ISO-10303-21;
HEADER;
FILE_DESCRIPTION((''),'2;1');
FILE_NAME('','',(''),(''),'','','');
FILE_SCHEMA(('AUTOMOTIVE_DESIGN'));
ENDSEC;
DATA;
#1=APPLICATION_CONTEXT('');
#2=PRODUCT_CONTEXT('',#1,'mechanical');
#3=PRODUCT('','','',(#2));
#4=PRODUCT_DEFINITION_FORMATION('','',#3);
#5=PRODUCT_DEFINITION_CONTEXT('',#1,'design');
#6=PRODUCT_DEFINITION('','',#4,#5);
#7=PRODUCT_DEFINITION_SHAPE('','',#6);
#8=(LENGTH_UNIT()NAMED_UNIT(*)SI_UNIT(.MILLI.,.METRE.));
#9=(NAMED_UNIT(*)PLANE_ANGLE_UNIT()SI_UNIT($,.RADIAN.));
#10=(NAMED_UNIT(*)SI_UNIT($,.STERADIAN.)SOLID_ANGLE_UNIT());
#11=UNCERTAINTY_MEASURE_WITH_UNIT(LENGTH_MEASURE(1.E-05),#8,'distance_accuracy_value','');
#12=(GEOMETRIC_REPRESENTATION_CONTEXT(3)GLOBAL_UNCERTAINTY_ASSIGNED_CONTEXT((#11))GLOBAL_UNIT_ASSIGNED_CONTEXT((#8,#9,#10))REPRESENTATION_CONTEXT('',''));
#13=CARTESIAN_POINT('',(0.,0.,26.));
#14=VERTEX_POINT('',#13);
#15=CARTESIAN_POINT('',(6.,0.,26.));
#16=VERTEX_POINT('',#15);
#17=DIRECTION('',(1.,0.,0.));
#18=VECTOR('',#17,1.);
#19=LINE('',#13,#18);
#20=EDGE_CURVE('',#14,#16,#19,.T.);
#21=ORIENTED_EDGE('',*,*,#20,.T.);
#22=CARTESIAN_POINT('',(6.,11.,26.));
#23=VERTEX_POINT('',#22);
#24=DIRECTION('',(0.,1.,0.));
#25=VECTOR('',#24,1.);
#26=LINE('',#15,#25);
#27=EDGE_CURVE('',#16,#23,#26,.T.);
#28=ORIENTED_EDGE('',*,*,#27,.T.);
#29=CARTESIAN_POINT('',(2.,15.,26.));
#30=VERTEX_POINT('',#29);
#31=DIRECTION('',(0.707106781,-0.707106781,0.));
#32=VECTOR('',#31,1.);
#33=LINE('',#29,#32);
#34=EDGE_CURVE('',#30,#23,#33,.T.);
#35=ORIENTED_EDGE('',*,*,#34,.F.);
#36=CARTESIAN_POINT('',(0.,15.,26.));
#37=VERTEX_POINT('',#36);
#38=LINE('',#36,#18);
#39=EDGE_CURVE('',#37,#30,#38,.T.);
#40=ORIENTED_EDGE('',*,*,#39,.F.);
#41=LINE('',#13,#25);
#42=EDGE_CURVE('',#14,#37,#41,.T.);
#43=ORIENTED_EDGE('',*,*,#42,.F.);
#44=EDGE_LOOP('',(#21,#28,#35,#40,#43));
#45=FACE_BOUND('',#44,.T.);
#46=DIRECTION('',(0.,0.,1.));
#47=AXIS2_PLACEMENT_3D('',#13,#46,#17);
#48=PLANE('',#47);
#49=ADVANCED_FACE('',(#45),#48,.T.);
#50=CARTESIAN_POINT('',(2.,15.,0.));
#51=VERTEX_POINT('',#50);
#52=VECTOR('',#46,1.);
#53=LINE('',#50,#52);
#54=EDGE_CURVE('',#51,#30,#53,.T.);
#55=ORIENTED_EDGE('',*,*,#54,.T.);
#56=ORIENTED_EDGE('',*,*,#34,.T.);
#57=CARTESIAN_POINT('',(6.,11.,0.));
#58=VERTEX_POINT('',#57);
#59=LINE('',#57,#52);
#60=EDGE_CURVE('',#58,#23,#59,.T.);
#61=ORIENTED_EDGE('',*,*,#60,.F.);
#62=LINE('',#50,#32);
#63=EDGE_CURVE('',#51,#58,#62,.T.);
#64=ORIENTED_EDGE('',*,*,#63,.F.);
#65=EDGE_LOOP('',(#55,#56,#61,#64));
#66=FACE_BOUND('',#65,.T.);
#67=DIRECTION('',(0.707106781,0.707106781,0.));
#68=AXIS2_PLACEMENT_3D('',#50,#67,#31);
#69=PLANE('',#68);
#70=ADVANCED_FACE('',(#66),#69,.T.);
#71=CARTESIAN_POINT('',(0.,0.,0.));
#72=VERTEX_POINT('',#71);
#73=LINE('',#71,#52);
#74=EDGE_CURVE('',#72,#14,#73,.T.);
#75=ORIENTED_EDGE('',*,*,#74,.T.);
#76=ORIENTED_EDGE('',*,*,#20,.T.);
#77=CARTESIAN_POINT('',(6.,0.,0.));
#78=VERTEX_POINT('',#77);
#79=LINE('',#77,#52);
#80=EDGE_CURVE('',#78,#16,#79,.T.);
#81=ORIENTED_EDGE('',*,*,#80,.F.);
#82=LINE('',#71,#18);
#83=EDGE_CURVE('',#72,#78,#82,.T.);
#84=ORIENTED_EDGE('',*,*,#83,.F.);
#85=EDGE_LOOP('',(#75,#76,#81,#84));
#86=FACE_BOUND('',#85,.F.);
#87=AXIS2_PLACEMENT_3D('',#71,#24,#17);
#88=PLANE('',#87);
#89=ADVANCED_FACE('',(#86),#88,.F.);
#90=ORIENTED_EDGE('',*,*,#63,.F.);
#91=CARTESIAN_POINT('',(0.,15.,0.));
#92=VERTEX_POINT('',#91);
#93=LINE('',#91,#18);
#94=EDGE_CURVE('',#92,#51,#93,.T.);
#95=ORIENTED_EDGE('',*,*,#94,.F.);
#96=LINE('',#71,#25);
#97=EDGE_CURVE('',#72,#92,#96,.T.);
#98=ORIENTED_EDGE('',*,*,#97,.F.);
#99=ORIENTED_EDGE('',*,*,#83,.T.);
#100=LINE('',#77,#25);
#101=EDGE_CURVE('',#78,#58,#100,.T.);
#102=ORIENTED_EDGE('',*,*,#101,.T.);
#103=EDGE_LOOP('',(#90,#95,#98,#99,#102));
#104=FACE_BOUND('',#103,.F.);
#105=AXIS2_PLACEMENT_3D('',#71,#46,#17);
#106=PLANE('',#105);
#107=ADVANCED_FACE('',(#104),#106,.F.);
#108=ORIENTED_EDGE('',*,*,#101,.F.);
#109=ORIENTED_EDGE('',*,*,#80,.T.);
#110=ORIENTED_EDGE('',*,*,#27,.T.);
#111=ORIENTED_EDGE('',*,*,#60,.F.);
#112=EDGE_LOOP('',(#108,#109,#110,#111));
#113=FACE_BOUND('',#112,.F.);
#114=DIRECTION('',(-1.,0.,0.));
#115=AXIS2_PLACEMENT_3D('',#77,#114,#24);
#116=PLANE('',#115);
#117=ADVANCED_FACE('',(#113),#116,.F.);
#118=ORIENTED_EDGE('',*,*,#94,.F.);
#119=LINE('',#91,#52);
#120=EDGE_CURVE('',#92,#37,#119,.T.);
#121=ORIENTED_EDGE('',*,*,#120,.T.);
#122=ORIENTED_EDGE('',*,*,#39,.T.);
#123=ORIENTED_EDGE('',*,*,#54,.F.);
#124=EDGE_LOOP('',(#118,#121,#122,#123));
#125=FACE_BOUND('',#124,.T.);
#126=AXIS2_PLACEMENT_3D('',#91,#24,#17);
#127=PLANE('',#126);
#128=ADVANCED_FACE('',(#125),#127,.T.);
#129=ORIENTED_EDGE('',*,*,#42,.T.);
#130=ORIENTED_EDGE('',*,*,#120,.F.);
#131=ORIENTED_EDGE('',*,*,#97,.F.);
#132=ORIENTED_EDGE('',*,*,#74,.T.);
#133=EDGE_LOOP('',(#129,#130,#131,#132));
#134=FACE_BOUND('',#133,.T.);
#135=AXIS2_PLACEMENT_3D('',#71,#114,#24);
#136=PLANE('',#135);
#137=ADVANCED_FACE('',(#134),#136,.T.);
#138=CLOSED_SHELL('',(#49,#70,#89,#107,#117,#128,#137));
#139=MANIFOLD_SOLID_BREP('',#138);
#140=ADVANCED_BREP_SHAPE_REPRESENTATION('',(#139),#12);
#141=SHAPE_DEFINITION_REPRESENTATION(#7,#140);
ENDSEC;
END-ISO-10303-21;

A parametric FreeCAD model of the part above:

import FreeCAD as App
import Part
import Sketcher
Q = App.Units.Quantity


def add_polygon(sketch, points):
    """Adds a closed chain of lines whose ends are joined by coincident constraints."""
    first, n = sketch.GeometryCount, len(points)
    for a, b in zip(points, points[1:] + points[:1]):
        sketch.addGeometry(Part.LineSegment(App.Vector(*a, 0), App.Vector(*b, 0)), False)
    for i in range(n):
        sketch.addConstraint(Sketcher.Constraint("Coincident", first + i, 2, first + (i + 1) % n, 1))

doc = App.newDocument("Part")
body = doc.addObject("PartDesign::Body", "Body")

# Sketch on XY plane
sketch1 = body.newObject("Sketcher::SketchObject", "Sketch")
sketch1.AttachmentSupport = (doc.getObject("XY_Plane"), [""])
sketch1.MapMode = "FlatFace"
add_polygon(sketch1, [(0, 15), (0, 0), (6, 0), (6, 11), (2, 15)])  # lines 0-4
sketch1.addConstraint(Sketcher.Constraint("Vertical", 0))
sketch1.addConstraint(Sketcher.Constraint("Horizontal", 1))
sketch1.addConstraint(Sketcher.Constraint("Vertical", 2))
sketch1.addConstraint(Sketcher.Constraint("Horizontal", 4))
sketch1.addConstraint(Sketcher.Constraint("Coincident", 0, 2, -1, 1))
sketch1.addConstraint(Sketcher.Constraint("DistanceX", 1, 1, 1, 2, Q("6 mm")))
sketch1.addConstraint(Sketcher.Constraint("DistanceX", 4, 2, 4, 1, Q("2 mm")))
sketch1.addConstraint(Sketcher.Constraint("DistanceY", 0, 2, 0, 1, Q("15 mm")))
sketch1.addConstraint(Sketcher.Constraint("DistanceY", 2, 1, 2, 2, Q("11 mm")))
pad1 = body.newObject("PartDesign::Pad", "Pad")
pad1.Profile = sketch1
pad1.Length = 26

doc.recompute()
